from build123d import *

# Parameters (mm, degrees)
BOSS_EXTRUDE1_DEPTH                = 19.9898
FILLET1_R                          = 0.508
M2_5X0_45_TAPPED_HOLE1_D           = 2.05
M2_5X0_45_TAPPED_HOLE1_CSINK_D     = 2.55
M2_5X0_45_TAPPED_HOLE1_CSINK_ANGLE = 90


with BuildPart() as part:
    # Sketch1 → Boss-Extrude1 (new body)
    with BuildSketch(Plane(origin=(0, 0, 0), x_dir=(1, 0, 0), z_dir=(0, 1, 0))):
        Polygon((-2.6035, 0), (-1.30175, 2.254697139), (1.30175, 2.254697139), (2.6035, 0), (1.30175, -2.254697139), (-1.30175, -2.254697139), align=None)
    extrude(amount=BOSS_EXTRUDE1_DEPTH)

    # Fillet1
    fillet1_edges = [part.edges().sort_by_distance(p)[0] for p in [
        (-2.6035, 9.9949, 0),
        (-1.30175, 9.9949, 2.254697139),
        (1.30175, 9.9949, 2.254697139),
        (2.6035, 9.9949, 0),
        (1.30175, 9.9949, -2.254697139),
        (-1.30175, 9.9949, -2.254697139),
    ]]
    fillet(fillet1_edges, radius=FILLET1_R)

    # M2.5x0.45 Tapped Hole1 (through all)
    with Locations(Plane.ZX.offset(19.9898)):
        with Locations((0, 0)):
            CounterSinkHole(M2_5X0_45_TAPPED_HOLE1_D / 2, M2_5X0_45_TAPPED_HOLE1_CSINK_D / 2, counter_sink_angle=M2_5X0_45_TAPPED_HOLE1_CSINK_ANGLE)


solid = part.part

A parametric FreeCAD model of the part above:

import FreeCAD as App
import Part
import Sketcher

V = App.Vector
Q = App.Units.Quantity


def edges_at(feature, points):
    """Names of the edges that pass closest to the given points."""
    edges = feature.Shape.Edges
    near = lambda p: min(range(len(edges)), key=lambda i: edges[i].distToShape(Part.Vertex(*p))[0])
    return sorted({f"Edge{near(p) + 1}" for p in points})

doc = App.newDocument("Part")
params = doc.addObject("Spreadsheet::Sheet", "Params")
for row, (alias, value) in enumerate([
    ("pad1_length", "0.787 in"),
    ("fillet_radius", "0.02 in"),
    ("hole_diameter", "2.05 mm"),
    ("hole_csink_diameter", "2.55 mm"),
], start=1):
    params.set(f"A{row}", alias)
    params.set(f"B{row}", "=" + value)
    params.setAlias(f"B{row}", alias)

body = doc.addObject("PartDesign::Body", "Body")

# Sketch on XZ plane
sketch1 = body.newObject("Sketcher::SketchObject", "Sketch")
sketch1.AttachmentSupport = (doc.getObject("XZ_Plane"), [""])
sketch1.MapMode = "FlatFace"
sketch1.addGeometry(Part.LineSegment(V(-1.30175, -2.254697, 0), V(-2.6035, 0, 0)), False)
sketch1.addGeometry(Part.LineSegment(V(-2.6035, 0, 0), V(-1.30175, 2.254697, 0)), False)
sketch1.addGeometry(Part.LineSegment(V(-1.30175, 2.254697, 0), V(1.30175, 2.254697, 0)), False)
sketch1.addGeometry(Part.LineSegment(V(1.30175, 2.254697, 0), V(2.6035, 0, 0)), False)
sketch1.addGeometry(Part.LineSegment(V(2.6035, 0, 0), V(1.30175, -2.254697, 0)), False)
sketch1.addGeometry(Part.LineSegment(V(1.30175, -2.254697, 0), V(-1.30175, -2.254697, 0)), False)
sketch1.addConstraint(Sketcher.Constraint("Coincident", 0, 2, 1, 1))
sketch1.addConstraint(Sketcher.Constraint("Coincident", 1, 2, 2, 1))
sketch1.addConstraint(Sketcher.Constraint("Coincident", 2, 2, 3, 1))
sketch1.addConstraint(Sketcher.Constraint("Coincident", 3, 2, 4, 1))
sketch1.addConstraint(Sketcher.Constraint("Coincident", 4, 2, 5, 1))
sketch1.addConstraint(Sketcher.Constraint("Coincident", 5, 2, 0, 1))
sketch1.addConstraint(Sketcher.Constraint("Horizontal", 2))
sketch1.addConstraint(Sketcher.Constraint("Horizontal", 5))
sketch1.addConstraint(Sketcher.Constraint("Symmetric", 0, 2, 3, 2, -1, 1))
sketch1.addConstraint(Sketcher.Constraint("Symmetric", 1, 2, 4, 2, -1, 1))
sketch1.addConstraint(Sketcher.Constraint("PointOnObject", 0, 2, -1))
sketch1.addConstraint(Sketcher.Constraint("Parallel", 0, 3))
sketch1.addConstraint(Sketcher.Constraint("Vertical", 2, 2, 4, 2))
sketch1.addConstraint(Sketcher.Constraint("Angle", 0, Q("120 deg")))
sketch1.addConstraint(Sketcher.Constraint("DistanceX", 2, 1, 2, 2, Q("0.1025 in")))
sketch1.addConstraint(Sketcher.Constraint("DistanceX", 0, 2, 3, 2, Q("0.205 in")))
pad1 = body.newObject("PartDesign::Pad", "Pad")
pad1.Profile = sketch1
pad1.setExpression("Length", "Params.pad1_length")
pad1.Reversed = True
doc.recompute()

fillet = body.newObject("PartDesign::Fillet", "Fillet")
fillet.Base = (pad1, edges_at(pad1, [
    (-2.603, 9.995, 0),
    (-1.302, 9.995, 2.255),
    (1.302, 9.995, 2.255),
    (2.603, 9.995, 0),
    (1.302, 9.995, -2.255),
    (-1.302, 9.995, -2.255),
]))
fillet.setExpression("Radius", "Params.fillet_radius")

# Sketch on XZ plane
sketch2 = body.newObject("Sketcher::SketchObject", "Sketch001")
sketch2.AttachmentSupport = (doc.getObject("XZ_Plane"), [""])
sketch2.MapMode = "FlatFace"
sketch2.AttachmentOffset = App.Placement(V(0, 0, -0.787 * 25.4), App.Rotation())
sketch2.addGeometry(Part.Circle(V(0, 0, 0), V(0, 0, 1), 1.025), False)
sketch2.addConstraint(Sketcher.Constraint("Coincident", 0, 3, -1, 1))
sketch2.addConstraint(Sketcher.Constraint("Diameter", 0, Q("2.05 mm")))
doc.recompute()
hole = body.newObject("PartDesign::Hole", "Hole")
hole.Profile = sketch2
hole.ThreadType = "None"
hole.setExpression("Diameter", "Params.hole_diameter")
hole.DepthType = "ThroughAll"
hole.HoleCutType = "Countersink"
hole.setExpression("HoleCutDiameter", "Params.hole_csink_diameter")
hole.HoleCutCountersinkAngle = 90
hole.Reversed = True

doc.recompute()
